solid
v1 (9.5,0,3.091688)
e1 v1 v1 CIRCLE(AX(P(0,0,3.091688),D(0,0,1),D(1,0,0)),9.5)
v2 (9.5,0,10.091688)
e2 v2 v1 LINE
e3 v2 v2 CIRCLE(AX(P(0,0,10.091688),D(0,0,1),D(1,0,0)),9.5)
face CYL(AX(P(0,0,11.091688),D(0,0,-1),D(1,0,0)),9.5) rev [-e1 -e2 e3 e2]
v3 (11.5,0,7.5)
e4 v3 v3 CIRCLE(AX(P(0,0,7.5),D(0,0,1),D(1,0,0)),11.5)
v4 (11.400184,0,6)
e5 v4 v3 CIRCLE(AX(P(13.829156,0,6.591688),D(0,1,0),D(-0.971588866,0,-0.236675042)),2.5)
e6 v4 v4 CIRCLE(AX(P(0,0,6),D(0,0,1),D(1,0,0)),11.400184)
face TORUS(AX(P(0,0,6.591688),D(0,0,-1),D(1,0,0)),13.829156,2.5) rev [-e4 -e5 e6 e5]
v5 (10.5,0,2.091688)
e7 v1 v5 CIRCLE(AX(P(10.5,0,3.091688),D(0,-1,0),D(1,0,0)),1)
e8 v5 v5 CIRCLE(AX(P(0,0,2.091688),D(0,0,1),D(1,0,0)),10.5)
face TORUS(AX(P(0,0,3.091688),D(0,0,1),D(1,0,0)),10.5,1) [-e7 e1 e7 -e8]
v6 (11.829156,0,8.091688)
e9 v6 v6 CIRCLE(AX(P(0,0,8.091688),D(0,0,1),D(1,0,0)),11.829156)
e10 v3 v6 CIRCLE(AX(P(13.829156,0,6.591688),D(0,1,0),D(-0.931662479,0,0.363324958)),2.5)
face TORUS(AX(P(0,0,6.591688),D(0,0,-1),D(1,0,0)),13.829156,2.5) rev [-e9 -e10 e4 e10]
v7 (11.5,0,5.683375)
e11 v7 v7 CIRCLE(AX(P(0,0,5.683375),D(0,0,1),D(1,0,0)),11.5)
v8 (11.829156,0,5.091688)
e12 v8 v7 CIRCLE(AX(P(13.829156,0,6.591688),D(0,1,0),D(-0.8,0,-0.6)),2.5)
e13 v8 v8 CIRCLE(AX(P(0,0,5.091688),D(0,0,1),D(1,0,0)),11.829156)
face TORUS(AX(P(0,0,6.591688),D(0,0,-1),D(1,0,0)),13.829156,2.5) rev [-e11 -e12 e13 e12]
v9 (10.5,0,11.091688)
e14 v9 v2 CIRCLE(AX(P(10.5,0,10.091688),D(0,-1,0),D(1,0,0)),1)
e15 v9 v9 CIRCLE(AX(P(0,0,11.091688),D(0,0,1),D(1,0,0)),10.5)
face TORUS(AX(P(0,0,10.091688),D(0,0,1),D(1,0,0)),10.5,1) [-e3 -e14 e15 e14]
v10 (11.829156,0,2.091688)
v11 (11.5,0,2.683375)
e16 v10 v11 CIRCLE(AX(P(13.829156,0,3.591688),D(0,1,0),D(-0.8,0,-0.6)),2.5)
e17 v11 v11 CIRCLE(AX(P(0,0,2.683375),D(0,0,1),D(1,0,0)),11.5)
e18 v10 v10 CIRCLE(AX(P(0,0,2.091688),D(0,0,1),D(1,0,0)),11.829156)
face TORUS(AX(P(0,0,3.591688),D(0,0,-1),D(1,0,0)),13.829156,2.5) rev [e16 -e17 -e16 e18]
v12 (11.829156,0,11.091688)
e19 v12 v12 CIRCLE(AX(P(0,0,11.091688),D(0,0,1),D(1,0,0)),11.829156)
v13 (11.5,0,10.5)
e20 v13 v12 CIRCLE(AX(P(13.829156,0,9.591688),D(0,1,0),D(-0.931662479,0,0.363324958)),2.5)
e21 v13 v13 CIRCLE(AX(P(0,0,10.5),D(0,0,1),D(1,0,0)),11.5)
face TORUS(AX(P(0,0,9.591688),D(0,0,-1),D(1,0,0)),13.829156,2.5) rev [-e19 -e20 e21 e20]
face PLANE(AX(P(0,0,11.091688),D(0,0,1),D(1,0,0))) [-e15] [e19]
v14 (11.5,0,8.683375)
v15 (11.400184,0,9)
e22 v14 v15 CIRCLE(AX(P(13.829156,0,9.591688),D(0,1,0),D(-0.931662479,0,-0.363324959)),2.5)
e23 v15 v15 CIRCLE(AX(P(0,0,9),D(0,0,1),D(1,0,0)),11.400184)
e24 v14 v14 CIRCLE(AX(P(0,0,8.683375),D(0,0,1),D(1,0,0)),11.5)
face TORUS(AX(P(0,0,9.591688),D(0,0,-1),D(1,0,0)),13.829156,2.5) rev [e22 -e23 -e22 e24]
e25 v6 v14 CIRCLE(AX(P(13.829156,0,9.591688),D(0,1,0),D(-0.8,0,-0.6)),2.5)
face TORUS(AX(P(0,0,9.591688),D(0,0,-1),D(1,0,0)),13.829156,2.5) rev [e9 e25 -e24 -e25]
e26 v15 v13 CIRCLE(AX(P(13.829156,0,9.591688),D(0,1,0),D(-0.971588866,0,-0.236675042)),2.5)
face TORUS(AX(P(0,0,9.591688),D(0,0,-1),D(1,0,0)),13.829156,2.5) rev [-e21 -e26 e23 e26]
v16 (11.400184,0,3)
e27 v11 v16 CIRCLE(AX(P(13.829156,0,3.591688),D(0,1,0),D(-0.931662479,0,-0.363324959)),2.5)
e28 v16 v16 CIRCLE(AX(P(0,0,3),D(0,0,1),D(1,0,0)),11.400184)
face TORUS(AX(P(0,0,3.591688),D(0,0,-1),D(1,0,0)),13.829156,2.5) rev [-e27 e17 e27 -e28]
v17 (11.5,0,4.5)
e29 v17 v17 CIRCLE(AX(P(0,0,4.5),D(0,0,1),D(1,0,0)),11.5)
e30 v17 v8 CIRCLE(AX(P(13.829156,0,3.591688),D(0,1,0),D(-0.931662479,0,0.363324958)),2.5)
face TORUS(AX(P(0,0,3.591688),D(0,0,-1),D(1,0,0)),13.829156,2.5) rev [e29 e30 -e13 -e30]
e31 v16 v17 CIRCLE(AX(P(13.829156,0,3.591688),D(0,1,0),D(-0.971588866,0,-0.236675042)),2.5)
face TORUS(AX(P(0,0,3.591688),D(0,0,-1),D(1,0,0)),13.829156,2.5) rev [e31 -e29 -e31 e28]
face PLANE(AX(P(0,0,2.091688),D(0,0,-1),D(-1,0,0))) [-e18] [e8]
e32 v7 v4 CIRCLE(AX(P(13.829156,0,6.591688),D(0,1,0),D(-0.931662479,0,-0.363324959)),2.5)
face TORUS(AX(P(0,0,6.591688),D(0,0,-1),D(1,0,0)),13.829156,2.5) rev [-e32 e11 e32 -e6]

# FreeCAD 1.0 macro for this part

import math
import FreeCAD as App
import Part
import Sketcher

V = App.Vector


def edges_at(feature, points):
    """Names of the edges that pass closest to the given points."""
    edges = feature.Shape.Edges
    near = lambda p: min(range(len(edges)), key=lambda i: edges[i].distToShape(Part.Vertex(*p))[0])
    return sorted({f"Edge{near(p) + 1}" for p in points})

doc = App.newDocument("Part")
body = doc.addObject("PartDesign::Body", "Body")

sketch1 = body.newObject("Sketcher::SketchObject", "Sketch")
sketch1.AttachmentSupport = (doc.getObject("XZ_Plane"), [""])
sketch1.MapMode = "FlatFace"
sketch1.addGeometry(Part.ArcOfCircle(Part.Circle(V(13.83, 3.59, 0), V(0, 0, 1), 2.5), math.radians(159), math.radians(194)), False)
sketch1.addGeometry(Part.ArcOfCircle(Part.Circle(V(13.83, 3.59, 0), V(0, 0, 1), 2.5), math.radians(143.13), math.radians(158.7)), False)
sketch1.addGeometry(Part.ArcOfCircle(Part.Circle(V(13.83, 6.59, 0), V(0, 0, 1), 2.5), math.radians(-158.7), math.radians(-143.13)), False)
sketch1.addGeometry(Part.ArcOfCircle(Part.Circle(V(13.83, 6.59, 0), V(0, 0, 1), 2.5), math.radians(-166.31), math.radians(-158.7)), False)
sketch1.addGeometry(Part.ArcOfCircle(Part.Circle(V(13.83, 6.59, 0), V(0, 0, 1), 2.5), math.radians(159), math.radians(194)), False)
sketch1.addGeometry(Part.ArcOfCircle(Part.Circle(V(13.83, 6.59, 0), V(0, 0, 1), 2.5), math.radians(143.13), math.radians(158.7)), False)
sketch1.addGeometry(Part.ArcOfCircle(Part.Circle(V(13.83, 9.59, 0), V(0, 0, 1), 2.5), math.radians(-158.7), math.radians(-143.13)), False)
sketch1.addGeometry(Part.ArcOfCircle(Part.Circle(V(13.83, 9.59, 0), V(0, 0, 1), 2.5), math.radians(-166.31), math.radians(-158.7)), False)
sketch1.addGeometry(Part.ArcOfCircle(Part.Circle(V(13.83, 9.59, 0), V(0, 0, 1), 2.5), math.radians(159), math.radians(194)), False)
sketch1.addGeometry(Part.ArcOfCircle(Part.Circle(V(13.83, 9.59, 0), V(0, 0, 1), 2.5), math.radians(143.13), math.radians(158.7)), False)
sketch1.addGeometry(Part.LineSegment(V(11.83, 11.09, 0), V(9.5, 11.09, 0)), False)
sketch1.addGeometry(Part.LineSegment(V(9.5, 11.09, 0), V(9.5, 2.09, 0)), False)
sketch1.addGeometry(Part.LineSegment(V(9.5, 2.09, 0), V(11.83, 2.09, 0)), False)
sketch1.addGeometry(Part.ArcOfCircle(Part.Circle(V(13.83, 3.59, 0), V(0, 0, 1), 2.5), math.radians(-158.7), math.radians(-143.13)), False)
sketch1.addGeometry(Part.ArcOfCircle(Part.Circle(V(13.83, 3.59, 0), V(0, 0, 1), 2.5), math.radians(-166.31), math.radians(-158.7)), False)
sketch1.addConstraint(Sketcher.Constraint("Tangent", 0, 1, 1, 2))
sketch1.addConstraint(Sketcher.Constraint("Coincident", 1, 1, 2, 2))
sketch1.addConstraint(Sketcher.Constraint("Tangent", 2, 1, 3, 2))
sketch1.addConstraint(Sketcher.Constraint("Tangent", 3, 1, 4, 2))
sketch1.addConstraint(Sketcher.Constraint("Tangent", 4, 1, 5, 2))
sketch1.addConstraint(Sketcher.Constraint("Coincident", 5, 1, 6, 2))
sketch1.addConstraint(Sketcher.Constraint("Tangent", 6, 1, 7, 2))
sketch1.addConstraint(Sketcher.Constraint("Tangent", 7, 1, 8, 2))
sketch1.addConstraint(Sketcher.Constraint("Tangent", 8, 1, 9, 2))
sketch1.addConstraint(Sketcher.Constraint("Coincident", 9, 1, 10, 1))
sketch1.addConstraint(Sketcher.Constraint("Coincident", 10, 2, 11, 1))
sketch1.addConstraint(Sketcher.Constraint("Coincident", 11, 2, 12, 1))
sketch1.addConstraint(Sketcher.Constraint("Coincident", 12, 2, 13, 2))
sketch1.addConstraint(Sketcher.Constraint("Tangent", 13, 1, 14, 2))
sketch1.addConstraint(Sketcher.Constraint("Tangent", 14, 1, 0, 2))
sketch1.addConstraint(Sketcher.Constraint("Horizontal", 10))
sketch1.addConstraint(Sketcher.Constraint("Vertical", 11))
sketch1.addConstraint(Sketcher.Constraint("Horizontal", 12))
sketch1.addConstraint(Sketcher.Constraint("Coincident", 4, 3, 2, 3))
sketch1.addConstraint(Sketcher.Constraint("Coincident", 8, 3, 6, 3))
sketch1.addConstraint(Sketcher.Constraint("Coincident", 13, 3, 0, 3))
sketch1.addConstraint(Sketcher.Constraint("Equal", 0, 1))
sketch1.addConstraint(Sketcher.Constraint("Equal", 1, 2))
sketch1.addConstraint(Sketcher.Constraint("Equal", 4, 5))
sketch1.addConstraint(Sketcher.Constraint("Equal", 5, 6))
sketch1.addConstraint(Sketcher.Constraint("Equal", 8, 9))
sketch1.addConstraint(Sketcher.Constraint("Vertical", 1, 3, 2, 3))
sketch1.addConstraint(Sketcher.Constraint("Vertical", 5, 3, 6, 3))
sketch1.addConstraint(Sketcher.Constraint("Vertical", 0, 1, 2, 1))
sketch1.addConstraint(Sketcher.Constraint("Vertical", 2, 1, 4, 1))
sketch1.addConstraint(Sketcher.Constraint("Vertical", 1, 1, 5, 1))
sketch1.addConstraint(Sketcher.Constraint("Vertical", 4, 1, 6, 1))
sketch1.addConstraint(Sketcher.Constraint("Vertical", 3, 1, 7, 1))
sketch1.addConstraint(Sketcher.Constraint("Vertical", 6, 1, 8, 1))
sketch1.addConstraint(Sketcher.Constraint("Vertical", 5, 1, 9, 1))
sketch1.addConstraint(Sketcher.Constraint("Vertical", 9, 1, 12, 2))
sketch1.addConstraint(Sketcher.Constraint("Vertical", 8, 1, 13, 1))
sketch1.addConstraint(Sketcher.Constraint("Vertical", 7, 1, 14, 1))
sketch1.addConstraint(Sketcher.Constraint("Radius", 0, 2.5))
sketch1.addConstraint(Sketcher.Constraint("DistanceY", 11, 2, 11, 1, 9.0))
sketch1.addConstraint(Sketcher.Constraint("DistanceY", -1, 1, 3, 1, 6.0))
sketch1.addConstraint(Sketcher.Constraint("DistanceX", 10, 2, 8, 1, 2.0))
sketch1.addConstraint(Sketcher.Constraint("DistanceX", -1, 1, 0, 1, 11.5))
sketch1.addConstraint(Sketcher.Constraint("DistanceY", -1, 1, 0, 1, 4.5))
sketch1.addConstraint(Sketcher.Constraint("DistanceX", 10, 2, 10, 1, 2.329156))
revolution = body.newObject("PartDesign::Revolution", "Revolution")
revolution.Profile = sketch1
revolution.ReferenceAxis = (sketch1, ["V_Axis"])
revolution.Angle = 360
doc.recompute()

fillet = body.newObject("PartDesign::Fillet", "Fillet")
fillet.Base = (revolution, edges_at(revolution, [(-9.5, 0, 11.092), (-9.5, 0, 2.092)]))
fillet.Radius = 1

doc.recompute()
